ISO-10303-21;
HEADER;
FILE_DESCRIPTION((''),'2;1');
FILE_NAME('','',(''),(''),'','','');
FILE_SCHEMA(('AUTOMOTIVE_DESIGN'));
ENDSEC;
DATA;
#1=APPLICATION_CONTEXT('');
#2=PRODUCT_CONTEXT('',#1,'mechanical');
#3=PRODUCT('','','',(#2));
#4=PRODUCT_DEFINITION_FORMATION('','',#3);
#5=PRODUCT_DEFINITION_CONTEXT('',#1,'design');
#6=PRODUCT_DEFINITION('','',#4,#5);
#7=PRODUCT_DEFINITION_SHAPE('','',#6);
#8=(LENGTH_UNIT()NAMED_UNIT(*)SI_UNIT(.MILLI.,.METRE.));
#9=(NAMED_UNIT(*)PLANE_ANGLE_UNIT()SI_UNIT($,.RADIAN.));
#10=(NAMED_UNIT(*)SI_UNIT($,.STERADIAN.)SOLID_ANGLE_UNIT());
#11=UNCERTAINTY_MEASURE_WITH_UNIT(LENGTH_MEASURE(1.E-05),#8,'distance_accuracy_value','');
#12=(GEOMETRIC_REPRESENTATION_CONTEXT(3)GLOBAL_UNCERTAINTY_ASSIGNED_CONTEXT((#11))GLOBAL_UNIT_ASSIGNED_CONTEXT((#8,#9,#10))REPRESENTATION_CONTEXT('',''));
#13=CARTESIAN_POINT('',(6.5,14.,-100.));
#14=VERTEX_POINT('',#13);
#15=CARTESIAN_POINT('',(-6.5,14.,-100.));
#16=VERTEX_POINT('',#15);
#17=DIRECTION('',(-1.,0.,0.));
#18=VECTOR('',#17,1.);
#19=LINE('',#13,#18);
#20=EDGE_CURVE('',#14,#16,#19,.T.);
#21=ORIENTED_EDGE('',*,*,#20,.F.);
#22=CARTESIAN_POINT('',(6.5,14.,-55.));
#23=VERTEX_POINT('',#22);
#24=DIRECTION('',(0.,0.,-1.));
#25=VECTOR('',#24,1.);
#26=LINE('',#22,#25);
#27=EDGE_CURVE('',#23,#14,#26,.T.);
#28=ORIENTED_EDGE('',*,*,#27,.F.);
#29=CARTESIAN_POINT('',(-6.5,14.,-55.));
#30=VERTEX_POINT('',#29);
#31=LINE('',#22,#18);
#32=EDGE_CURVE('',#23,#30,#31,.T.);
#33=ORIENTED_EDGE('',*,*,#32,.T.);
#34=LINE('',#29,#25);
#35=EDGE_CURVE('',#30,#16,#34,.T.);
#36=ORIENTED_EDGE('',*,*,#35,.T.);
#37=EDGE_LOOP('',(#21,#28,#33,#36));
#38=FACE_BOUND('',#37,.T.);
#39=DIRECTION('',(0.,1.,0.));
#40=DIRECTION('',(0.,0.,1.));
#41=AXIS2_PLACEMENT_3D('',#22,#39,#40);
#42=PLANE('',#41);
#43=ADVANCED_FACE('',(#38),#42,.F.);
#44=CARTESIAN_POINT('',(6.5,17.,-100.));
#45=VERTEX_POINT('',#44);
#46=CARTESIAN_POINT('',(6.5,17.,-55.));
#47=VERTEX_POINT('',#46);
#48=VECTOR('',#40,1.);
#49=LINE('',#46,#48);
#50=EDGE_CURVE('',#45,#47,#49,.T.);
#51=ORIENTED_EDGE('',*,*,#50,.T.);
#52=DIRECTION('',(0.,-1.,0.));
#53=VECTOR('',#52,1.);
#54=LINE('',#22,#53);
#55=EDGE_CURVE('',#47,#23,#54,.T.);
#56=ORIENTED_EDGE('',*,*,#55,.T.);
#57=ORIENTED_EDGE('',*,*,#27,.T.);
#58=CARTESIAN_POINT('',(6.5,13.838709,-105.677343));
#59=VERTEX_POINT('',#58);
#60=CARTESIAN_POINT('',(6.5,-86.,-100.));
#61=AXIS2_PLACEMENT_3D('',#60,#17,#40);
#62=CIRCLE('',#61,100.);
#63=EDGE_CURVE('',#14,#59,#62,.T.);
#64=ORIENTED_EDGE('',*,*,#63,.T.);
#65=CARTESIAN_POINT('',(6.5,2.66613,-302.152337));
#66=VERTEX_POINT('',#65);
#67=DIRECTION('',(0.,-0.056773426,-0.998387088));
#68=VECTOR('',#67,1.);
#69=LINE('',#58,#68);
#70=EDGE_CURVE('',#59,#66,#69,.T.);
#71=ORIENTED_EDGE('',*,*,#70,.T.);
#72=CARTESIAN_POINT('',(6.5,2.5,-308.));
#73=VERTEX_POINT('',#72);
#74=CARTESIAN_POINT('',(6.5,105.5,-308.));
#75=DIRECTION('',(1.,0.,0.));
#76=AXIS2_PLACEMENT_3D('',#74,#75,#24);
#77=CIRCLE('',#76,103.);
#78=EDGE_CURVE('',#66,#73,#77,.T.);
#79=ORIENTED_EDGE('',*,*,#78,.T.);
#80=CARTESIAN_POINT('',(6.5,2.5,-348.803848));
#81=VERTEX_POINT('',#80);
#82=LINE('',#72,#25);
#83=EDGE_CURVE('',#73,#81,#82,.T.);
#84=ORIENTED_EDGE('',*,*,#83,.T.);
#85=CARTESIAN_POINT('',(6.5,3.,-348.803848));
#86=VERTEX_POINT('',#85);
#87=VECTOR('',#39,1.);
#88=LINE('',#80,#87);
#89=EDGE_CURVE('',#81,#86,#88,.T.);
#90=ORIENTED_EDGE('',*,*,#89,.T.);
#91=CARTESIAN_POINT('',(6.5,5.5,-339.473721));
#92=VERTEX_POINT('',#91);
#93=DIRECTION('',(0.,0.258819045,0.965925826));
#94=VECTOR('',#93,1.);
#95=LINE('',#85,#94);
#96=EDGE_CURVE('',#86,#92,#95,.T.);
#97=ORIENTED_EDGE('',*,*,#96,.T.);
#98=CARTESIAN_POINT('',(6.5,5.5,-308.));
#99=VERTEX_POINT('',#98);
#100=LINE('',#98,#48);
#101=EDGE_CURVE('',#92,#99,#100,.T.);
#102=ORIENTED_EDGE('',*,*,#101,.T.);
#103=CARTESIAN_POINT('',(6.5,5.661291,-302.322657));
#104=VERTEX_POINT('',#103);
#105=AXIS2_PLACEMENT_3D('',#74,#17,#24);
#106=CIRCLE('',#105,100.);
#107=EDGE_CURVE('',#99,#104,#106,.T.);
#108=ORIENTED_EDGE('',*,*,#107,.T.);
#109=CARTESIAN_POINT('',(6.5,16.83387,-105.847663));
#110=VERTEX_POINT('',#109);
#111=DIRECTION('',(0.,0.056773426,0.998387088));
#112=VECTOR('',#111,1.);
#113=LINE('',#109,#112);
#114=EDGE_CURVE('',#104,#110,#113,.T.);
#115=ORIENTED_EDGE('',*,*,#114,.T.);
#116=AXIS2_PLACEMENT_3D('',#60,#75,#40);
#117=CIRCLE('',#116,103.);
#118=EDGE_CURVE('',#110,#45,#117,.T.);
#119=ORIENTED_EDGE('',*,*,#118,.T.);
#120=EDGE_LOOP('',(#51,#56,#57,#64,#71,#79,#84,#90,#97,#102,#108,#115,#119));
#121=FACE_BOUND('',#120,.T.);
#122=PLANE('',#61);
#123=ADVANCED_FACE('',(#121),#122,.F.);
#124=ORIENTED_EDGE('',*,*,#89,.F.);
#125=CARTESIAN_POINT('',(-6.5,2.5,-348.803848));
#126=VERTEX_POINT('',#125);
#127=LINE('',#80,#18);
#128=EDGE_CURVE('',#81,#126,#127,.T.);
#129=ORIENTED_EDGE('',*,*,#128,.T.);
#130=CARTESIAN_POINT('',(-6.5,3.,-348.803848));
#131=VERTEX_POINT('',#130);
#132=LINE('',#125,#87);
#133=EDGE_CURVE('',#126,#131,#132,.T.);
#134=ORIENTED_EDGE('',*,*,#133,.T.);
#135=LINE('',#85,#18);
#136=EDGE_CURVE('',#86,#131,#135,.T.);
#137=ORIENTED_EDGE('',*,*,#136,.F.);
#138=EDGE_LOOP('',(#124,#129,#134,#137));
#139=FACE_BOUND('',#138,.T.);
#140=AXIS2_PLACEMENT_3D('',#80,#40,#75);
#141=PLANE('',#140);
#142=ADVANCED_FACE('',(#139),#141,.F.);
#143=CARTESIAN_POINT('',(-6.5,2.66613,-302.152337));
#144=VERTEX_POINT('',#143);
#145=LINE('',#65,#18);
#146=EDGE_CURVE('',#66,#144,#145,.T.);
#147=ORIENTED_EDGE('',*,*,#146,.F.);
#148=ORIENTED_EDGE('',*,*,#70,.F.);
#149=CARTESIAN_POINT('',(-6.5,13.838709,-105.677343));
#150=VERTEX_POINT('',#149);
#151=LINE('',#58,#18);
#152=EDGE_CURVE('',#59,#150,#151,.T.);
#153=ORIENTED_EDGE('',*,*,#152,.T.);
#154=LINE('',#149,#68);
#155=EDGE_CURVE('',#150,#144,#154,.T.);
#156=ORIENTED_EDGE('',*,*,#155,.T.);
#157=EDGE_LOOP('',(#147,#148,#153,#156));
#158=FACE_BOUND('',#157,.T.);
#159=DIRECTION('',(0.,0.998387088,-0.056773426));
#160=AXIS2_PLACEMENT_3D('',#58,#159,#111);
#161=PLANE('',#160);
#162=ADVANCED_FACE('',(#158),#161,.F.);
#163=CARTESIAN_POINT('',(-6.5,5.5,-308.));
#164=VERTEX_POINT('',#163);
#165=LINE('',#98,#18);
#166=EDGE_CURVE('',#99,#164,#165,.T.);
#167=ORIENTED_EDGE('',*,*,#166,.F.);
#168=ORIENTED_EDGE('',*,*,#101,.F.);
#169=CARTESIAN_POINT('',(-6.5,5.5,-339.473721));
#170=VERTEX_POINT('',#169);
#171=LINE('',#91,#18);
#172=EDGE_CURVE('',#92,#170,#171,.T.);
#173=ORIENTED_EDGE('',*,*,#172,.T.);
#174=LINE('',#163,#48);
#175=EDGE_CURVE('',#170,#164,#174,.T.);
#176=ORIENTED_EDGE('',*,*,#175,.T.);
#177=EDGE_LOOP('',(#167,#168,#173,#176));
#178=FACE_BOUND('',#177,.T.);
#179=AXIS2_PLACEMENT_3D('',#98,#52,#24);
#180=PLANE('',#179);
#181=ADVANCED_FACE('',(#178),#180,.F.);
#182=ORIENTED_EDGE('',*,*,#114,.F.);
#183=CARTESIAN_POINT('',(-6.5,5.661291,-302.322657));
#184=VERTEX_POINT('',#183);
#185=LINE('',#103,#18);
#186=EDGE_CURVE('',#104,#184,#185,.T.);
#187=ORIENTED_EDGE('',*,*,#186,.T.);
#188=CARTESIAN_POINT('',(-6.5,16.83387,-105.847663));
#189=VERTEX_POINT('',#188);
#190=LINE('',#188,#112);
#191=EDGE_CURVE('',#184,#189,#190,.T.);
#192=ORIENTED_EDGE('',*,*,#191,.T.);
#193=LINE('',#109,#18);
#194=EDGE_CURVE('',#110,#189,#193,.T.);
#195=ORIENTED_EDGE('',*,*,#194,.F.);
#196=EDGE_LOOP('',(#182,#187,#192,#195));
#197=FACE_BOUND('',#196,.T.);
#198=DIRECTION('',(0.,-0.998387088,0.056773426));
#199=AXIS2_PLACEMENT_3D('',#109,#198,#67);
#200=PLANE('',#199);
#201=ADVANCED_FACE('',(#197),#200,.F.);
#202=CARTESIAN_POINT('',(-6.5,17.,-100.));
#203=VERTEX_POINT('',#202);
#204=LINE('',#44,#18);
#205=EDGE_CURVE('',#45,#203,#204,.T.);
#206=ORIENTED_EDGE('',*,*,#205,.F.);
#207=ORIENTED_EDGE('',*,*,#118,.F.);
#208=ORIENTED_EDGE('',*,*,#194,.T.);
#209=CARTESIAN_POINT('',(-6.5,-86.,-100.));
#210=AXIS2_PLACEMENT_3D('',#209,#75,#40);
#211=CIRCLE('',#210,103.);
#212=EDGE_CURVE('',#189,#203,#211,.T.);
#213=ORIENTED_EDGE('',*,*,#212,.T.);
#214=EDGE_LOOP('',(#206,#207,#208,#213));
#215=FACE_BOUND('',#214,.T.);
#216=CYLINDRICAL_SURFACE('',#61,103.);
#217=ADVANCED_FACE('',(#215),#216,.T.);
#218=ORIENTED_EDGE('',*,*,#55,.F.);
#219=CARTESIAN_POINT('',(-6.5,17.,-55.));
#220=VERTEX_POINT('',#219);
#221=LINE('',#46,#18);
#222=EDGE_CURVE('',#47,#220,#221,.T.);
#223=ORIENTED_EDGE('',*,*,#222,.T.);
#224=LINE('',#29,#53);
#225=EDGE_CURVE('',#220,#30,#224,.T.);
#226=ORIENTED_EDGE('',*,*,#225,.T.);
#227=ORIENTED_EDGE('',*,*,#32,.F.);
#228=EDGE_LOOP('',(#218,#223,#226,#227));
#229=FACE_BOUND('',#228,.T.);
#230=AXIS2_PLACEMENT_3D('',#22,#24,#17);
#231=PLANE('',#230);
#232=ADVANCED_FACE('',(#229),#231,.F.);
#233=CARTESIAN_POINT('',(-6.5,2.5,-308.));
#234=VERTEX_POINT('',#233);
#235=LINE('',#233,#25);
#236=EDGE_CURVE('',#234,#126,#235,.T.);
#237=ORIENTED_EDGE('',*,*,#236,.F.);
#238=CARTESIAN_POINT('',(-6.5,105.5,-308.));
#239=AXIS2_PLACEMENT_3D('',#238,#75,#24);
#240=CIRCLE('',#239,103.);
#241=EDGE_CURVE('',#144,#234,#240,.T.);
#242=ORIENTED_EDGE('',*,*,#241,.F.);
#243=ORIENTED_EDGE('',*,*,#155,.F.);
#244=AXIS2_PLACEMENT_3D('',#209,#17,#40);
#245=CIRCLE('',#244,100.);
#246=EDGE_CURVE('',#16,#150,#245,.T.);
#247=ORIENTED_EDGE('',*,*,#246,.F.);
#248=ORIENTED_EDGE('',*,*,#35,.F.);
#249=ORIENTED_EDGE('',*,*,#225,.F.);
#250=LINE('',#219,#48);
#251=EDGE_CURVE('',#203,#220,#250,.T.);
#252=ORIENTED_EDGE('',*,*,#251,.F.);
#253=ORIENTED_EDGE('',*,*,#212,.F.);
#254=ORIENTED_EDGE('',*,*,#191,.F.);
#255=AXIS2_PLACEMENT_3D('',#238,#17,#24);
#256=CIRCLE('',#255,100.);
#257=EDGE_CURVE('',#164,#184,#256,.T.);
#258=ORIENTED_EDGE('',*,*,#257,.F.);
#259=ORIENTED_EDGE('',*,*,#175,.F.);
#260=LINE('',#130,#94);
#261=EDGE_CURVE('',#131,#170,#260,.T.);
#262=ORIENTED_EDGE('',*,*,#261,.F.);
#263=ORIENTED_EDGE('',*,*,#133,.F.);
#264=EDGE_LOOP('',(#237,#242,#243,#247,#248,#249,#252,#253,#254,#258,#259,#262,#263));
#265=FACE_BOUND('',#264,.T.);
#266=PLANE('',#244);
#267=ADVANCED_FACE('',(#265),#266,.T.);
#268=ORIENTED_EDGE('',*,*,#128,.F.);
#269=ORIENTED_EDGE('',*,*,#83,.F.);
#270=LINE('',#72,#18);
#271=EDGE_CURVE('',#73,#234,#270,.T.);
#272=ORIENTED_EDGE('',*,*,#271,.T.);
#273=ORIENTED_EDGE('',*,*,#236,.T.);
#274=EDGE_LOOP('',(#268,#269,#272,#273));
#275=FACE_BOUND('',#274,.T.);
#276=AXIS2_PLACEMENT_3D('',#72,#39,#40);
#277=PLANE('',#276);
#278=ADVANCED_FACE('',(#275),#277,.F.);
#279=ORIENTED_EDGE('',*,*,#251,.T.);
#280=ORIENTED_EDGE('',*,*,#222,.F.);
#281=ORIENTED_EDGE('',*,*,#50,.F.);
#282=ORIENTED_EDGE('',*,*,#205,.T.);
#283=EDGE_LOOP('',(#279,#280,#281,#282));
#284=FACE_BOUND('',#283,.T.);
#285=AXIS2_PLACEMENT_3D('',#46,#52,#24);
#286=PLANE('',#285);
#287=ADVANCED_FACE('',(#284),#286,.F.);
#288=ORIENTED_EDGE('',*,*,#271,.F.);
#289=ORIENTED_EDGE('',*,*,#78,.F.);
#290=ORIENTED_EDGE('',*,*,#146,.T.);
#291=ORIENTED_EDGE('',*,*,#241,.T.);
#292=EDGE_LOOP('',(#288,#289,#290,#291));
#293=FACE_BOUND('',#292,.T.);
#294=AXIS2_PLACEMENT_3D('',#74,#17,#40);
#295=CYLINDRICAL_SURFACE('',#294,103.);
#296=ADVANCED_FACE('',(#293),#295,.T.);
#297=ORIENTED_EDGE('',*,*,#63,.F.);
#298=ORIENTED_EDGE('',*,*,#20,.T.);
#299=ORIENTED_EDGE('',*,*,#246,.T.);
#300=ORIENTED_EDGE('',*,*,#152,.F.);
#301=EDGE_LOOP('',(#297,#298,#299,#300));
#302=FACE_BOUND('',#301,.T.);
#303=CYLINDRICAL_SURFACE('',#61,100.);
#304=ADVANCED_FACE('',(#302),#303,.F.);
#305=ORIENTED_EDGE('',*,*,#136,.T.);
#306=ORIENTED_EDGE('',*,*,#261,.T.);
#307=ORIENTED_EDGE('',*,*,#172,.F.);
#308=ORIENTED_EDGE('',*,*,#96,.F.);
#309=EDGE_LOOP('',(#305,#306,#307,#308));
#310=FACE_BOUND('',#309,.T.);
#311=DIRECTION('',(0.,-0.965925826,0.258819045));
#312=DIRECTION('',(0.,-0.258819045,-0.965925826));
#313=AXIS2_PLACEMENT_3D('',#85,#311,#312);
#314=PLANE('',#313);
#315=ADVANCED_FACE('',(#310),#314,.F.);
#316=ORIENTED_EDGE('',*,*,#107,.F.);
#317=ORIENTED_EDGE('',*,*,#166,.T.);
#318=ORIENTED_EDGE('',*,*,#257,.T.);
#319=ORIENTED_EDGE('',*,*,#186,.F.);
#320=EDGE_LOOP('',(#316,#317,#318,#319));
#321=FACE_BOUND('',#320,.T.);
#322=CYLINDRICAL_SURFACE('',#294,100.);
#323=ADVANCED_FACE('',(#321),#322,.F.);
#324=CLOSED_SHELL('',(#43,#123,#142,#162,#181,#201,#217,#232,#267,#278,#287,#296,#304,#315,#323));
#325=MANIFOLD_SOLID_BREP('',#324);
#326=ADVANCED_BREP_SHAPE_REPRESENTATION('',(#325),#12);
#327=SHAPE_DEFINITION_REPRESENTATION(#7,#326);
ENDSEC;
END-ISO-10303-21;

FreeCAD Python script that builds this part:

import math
import FreeCAD as App
import Part
import Sketcher

V = App.Vector
Q = App.Units.Quantity

doc = App.newDocument("Part")
body = doc.addObject("PartDesign::Body", "Body")

sketch1 = body.newObject("Sketcher::SketchObject", "Sketch")
sketch1.AttachmentSupport = (doc.getObject("YZ_Plane"), [""])
sketch1.MapMode = "FlatFace"
sketch1.addGeometry(Part.LineSegment(V(14, -55, 0), V(14, -100, 0)), False)
sketch1.addGeometry(Part.ArcOfCircle(Part.Circle(V(-86, -100, 0), V(0, 0, 1), 100), math.radians(-3.25), math.radians(0)), False)
sketch1.addGeometry(Part.LineSegment(V(13.8, -105.7, 0), V(2.7, -302.2, 0)), False)
sketch1.addGeometry(Part.ArcOfCircle(Part.Circle(V(105.5, -308, 0), V(0, 0, 1), 103), math.radians(176.75), math.radians(180)), False)
sketch1.addGeometry(Part.LineSegment(V(2.5, -308, 0), V(2.5, -348.8, 0)), False)
sketch1.addGeometry(Part.LineSegment(V(2.5, -348.8, 0), V(3, -348.8, 0)), False)
sketch1.addGeometry(Part.LineSegment(V(3, -348.8, 0), V(5.5, -339.5, 0)), False)
sketch1.addGeometry(Part.LineSegment(V(5.5, -339.5, 0), V(5.5, -308, 0)), False)
sketch1.addGeometry(Part.ArcOfCircle(Part.Circle(V(105.5, -308, 0), V(0, 0, 1), 100), math.radians(176.75), math.radians(180)), False)
sketch1.addGeometry(Part.LineSegment(V(5.7, -302.3, 0), V(16.8, -105.8, 0)), False)
sketch1.addGeometry(Part.ArcOfCircle(Part.Circle(V(-86, -100, 0), V(0, 0, 1), 103), math.radians(-3.25), math.radians(0)), False)
sketch1.addGeometry(Part.LineSegment(V(17, -100, 0), V(17, -55, 0)), False)
sketch1.addGeometry(Part.LineSegment(V(17, -55, 0), V(14, -55, 0)), False)
sketch1.addConstraint(Sketcher.Constraint("Tangent", 0, 2, 1, 2))
sketch1.addConstraint(Sketcher.Constraint("Tangent", 1, 1, 2, 1))
sketch1.addConstraint(Sketcher.Constraint("Tangent", 2, 2, 3, 1))
sketch1.addConstraint(Sketcher.Constraint("Tangent", 3, 2, 4, 1))
sketch1.addConstraint(Sketcher.Constraint("Coincident", 4, 2, 5, 1))
sketch1.addConstraint(Sketcher.Constraint("Coincident", 5, 2, 6, 1))
sketch1.addConstraint(Sketcher.Constraint("Coincident", 6, 2, 7, 1))
sketch1.addConstraint(Sketcher.Constraint("Tangent", 7, 2, 8, 2))
sketch1.addConstraint(Sketcher.Constraint("Tangent", 8, 1, 9, 1))
sketch1.addConstraint(Sketcher.Constraint("Tangent", 9, 2, 10, 1))
sketch1.addConstraint(Sketcher.Constraint("Tangent", 10, 2, 11, 1))
sketch1.addConstraint(Sketcher.Constraint("Coincident", 11, 2, 12, 1))
sketch1.addConstraint(Sketcher.Constraint("Coincident", 12, 2, 0, 1))
sketch1.addConstraint(Sketcher.Constraint("Vertical", 0))
sketch1.addConstraint(Sketcher.Constraint("Vertical", 4))
sketch1.addConstraint(Sketcher.Constraint("Horizontal", 5))
sketch1.addConstraint(Sketcher.Constraint("Vertical", 7))
sketch1.addConstraint(Sketcher.Constraint("Vertical", 11))
sketch1.addConstraint(Sketcher.Constraint("Horizontal", 12))
sketch1.addConstraint(Sketcher.Constraint("Coincident", 8, 3, 3, 3))
sketch1.addConstraint(Sketcher.Constraint("Coincident", 10, 3, 1, 3))
sketch1.addConstraint(Sketcher.Constraint("Equal", 1, 8))
sketch1.addConstraint(Sketcher.Constraint("Equal", 3, 10))
sketch1.addConstraint(Sketcher.Constraint("Radius", 1, 99.999999))
sketch1.addConstraint(Sketcher.Constraint("Radius", 3, 103.0))
sketch1.addConstraint(Sketcher.Constraint("DistanceY", 0, 2, 0, 1, 45.0))
sketch1.addConstraint(Sketcher.Constraint("Angle", 6, Q("75 deg")))
sketch1.addConstraint(Sketcher.Constraint("DistanceX", 5, 1, 5, 2, 0.5))
sketch1.addConstraint(Sketcher.Constraint("DistanceX", 1, 3, -1, 1, 85.999999))
sketch1.addConstraint(Sketcher.Constraint("DistanceY", 1, 3, -1, 1, 100.0))
sketch1.addConstraint(Sketcher.Constraint("DistanceY", 3, 3, -1, 1, 308.0))
sketch1.addConstraint(Sketcher.Constraint("DistanceX", -1, 1, 5, 2, 3.0))
sketch1.addConstraint(Sketcher.Constraint("DistanceY", 7, 1, 7, 2, 31.473721))
pad1 = body.newObject("PartDesign::Pad", "Pad")
pad1.Profile = sketch1
pad1.Length = 13
pad1.Midplane = True

doc.recompute()
